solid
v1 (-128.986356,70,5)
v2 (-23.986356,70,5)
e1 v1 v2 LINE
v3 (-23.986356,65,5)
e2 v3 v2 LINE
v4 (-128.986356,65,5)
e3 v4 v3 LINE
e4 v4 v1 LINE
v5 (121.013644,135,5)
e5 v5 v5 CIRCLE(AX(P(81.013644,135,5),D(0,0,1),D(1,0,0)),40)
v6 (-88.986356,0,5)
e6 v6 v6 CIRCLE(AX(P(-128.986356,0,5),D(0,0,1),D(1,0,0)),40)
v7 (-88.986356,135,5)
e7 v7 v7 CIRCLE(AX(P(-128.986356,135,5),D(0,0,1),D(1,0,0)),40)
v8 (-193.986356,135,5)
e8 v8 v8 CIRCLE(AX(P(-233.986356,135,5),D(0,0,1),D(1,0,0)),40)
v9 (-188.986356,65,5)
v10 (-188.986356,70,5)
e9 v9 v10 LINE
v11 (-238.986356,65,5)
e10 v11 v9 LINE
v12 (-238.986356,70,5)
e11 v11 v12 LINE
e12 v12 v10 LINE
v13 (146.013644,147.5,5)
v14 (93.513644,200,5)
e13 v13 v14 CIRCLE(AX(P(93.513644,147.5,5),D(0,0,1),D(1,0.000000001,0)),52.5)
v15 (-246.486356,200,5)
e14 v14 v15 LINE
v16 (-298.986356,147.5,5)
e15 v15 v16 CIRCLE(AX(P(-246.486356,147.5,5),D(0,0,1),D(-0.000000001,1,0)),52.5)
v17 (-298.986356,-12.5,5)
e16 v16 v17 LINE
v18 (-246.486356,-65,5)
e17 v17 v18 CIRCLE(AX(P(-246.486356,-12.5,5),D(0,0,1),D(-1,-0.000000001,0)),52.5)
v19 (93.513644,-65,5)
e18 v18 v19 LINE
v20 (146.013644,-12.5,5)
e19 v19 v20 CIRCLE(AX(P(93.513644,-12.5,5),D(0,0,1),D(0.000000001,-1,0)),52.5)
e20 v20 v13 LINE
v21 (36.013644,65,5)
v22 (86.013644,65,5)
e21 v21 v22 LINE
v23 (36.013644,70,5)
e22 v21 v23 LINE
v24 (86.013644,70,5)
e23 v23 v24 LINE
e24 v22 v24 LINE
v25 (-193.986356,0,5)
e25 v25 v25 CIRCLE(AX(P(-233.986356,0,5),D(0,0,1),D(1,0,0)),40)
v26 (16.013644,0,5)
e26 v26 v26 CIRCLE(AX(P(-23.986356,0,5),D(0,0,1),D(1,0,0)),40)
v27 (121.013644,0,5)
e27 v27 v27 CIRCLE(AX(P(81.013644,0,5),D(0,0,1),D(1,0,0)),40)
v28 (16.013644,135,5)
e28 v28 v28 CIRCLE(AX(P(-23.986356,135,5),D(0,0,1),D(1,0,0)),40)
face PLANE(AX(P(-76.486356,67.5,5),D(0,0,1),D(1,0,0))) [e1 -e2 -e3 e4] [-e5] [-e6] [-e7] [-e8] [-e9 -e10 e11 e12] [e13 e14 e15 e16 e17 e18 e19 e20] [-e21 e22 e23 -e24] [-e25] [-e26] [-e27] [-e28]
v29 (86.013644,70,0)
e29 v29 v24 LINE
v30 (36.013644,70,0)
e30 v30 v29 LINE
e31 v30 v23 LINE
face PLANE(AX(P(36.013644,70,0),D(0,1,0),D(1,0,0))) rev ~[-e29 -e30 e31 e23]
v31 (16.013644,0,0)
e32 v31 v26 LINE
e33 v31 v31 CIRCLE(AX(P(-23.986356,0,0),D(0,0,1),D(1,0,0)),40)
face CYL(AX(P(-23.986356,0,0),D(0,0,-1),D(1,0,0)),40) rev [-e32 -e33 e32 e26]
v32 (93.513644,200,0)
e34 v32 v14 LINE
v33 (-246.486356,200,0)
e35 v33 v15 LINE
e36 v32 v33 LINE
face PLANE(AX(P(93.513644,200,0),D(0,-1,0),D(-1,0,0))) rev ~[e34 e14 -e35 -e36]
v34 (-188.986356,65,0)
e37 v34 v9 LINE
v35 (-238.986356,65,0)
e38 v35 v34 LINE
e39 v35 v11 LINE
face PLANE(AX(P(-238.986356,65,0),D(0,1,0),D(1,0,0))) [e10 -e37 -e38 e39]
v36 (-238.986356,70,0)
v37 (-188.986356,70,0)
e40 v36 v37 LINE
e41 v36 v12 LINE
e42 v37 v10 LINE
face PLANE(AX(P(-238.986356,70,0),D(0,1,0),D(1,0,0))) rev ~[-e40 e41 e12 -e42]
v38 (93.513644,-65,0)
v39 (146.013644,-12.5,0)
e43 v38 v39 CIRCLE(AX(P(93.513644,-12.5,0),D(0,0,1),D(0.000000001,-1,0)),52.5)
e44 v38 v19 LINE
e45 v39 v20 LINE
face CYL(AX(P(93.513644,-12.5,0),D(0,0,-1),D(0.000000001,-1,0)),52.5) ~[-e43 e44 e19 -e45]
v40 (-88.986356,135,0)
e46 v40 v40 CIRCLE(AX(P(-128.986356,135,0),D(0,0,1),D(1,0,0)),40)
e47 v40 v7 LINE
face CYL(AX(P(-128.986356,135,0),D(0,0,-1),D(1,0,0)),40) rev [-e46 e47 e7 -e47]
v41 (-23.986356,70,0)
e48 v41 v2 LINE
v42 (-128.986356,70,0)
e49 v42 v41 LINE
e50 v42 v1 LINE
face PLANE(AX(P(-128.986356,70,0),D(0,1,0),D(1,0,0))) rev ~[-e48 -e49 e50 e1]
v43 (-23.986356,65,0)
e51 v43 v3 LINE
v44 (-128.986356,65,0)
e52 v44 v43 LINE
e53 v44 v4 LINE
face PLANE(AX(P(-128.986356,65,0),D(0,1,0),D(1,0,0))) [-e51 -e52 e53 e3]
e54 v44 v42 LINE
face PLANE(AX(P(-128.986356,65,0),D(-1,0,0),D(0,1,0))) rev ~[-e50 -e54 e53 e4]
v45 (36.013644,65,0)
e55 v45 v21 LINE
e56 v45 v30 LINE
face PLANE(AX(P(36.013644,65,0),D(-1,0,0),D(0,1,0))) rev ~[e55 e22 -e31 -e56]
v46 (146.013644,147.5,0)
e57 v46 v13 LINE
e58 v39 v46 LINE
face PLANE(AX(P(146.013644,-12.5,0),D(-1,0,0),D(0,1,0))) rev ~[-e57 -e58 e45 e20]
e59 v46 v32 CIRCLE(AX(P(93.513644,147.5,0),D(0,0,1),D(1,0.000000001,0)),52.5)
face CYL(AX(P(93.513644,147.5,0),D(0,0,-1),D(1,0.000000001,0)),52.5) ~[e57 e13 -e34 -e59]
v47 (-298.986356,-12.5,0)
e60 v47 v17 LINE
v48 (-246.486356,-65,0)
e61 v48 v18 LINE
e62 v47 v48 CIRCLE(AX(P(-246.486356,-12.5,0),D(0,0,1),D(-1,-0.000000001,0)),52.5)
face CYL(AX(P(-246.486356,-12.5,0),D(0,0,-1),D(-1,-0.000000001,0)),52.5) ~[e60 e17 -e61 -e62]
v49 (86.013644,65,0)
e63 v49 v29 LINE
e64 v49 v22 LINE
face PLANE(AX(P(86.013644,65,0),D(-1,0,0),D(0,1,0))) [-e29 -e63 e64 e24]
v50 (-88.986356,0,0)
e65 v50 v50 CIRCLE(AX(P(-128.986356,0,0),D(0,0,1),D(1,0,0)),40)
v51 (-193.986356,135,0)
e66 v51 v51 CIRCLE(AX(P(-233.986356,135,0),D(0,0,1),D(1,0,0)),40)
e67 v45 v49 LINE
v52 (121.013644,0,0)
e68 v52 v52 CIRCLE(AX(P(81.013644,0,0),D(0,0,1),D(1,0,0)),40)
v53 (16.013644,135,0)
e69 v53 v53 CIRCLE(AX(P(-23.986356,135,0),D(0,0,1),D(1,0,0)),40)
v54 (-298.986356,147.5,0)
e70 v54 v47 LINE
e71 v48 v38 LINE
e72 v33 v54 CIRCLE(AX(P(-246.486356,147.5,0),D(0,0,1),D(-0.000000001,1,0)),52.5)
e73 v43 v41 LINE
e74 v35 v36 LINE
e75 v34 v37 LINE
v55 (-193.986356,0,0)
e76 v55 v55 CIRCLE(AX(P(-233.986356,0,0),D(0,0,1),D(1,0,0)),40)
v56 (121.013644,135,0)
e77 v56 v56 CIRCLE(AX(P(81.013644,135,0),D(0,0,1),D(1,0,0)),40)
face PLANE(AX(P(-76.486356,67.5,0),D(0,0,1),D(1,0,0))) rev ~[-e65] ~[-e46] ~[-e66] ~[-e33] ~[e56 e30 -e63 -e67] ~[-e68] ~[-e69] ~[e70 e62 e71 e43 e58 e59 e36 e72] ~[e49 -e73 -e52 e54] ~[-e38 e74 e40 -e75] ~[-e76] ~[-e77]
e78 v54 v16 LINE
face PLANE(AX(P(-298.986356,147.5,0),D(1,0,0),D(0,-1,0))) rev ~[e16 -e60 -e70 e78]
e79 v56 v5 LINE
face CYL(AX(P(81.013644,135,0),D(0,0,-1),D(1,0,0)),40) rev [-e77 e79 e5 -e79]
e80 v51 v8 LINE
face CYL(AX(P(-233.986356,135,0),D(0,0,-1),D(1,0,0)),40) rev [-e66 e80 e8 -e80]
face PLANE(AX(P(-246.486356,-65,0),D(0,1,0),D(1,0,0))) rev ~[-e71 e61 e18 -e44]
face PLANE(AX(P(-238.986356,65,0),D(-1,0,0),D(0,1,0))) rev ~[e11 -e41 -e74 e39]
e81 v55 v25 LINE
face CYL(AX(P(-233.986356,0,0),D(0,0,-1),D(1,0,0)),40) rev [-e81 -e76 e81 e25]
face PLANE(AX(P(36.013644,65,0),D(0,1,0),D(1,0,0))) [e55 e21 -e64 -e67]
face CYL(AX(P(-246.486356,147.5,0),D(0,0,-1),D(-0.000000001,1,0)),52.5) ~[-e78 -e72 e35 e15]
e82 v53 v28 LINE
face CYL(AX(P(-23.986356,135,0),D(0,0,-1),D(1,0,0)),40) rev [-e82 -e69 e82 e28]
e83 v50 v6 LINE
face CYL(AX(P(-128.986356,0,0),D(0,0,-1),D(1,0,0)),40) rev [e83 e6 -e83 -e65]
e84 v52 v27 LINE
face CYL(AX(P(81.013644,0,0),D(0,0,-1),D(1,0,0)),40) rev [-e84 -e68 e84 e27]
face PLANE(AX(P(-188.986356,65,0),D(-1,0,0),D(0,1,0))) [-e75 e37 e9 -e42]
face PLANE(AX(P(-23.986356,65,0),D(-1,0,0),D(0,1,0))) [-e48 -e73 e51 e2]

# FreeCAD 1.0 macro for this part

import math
import FreeCAD as App
import Part
import Sketcher


def add_polygon(sketch, points):
    """Adds a closed chain of lines whose ends are joined by coincident constraints."""
    first, n = sketch.GeometryCount, len(points)
    for a, b in zip(points, points[1:] + points[:1]):
        sketch.addGeometry(Part.LineSegment(App.Vector(*a, 0), App.Vector(*b, 0)), False)
    for i in range(n):
        sketch.addConstraint(Sketcher.Constraint("Coincident", first + i, 2, first + (i + 1) % n, 1))

doc = App.newDocument("Part")
body = doc.addObject("PartDesign::Body", "Body")

sketch1 = body.newObject("Sketcher::SketchObject", "Sketch")
sketch1.AttachmentSupport = (doc.getObject("XY_Plane"), [""])
sketch1.MapMode = "FlatFace"
sketch1.addGeometry(Part.ArcOfCircle(Part.Circle(App.Vector(93.513644, 147.5, 0), App.Vector(0, 0, 1), 52.5), math.radians(0), math.radians(90)), False)
sketch1.addGeometry(Part.LineSegment(App.Vector(93.513644, 200, 0), App.Vector(-246.486356, 200, 0)), False)
sketch1.addGeometry(Part.ArcOfCircle(Part.Circle(App.Vector(-246.486356, 147.5, 0), App.Vector(0, 0, 1), 52.5), math.radians(90), math.radians(180)), False)
sketch1.addGeometry(Part.LineSegment(App.Vector(-298.986356, 147.5, 0), App.Vector(-298.986356, -12.5, 0)), False)
sketch1.addGeometry(Part.ArcOfCircle(Part.Circle(App.Vector(-246.486356, -12.5, 0), App.Vector(0, 0, 1), 52.5), math.radians(-180), math.radians(-90)), False)
sketch1.addGeometry(Part.LineSegment(App.Vector(-246.486356, -65, 0), App.Vector(93.513644, -65, 0)), False)
sketch1.addGeometry(Part.ArcOfCircle(Part.Circle(App.Vector(93.513644, -12.5, 0), App.Vector(0, 0, 1), 52.5), math.radians(-90), math.radians(0)), False)
sketch1.addGeometry(Part.LineSegment(App.Vector(146.013644, -12.5, 0), App.Vector(146.013644, 147.5, 0)), False)
sketch1.addGeometry(Part.Circle(App.Vector(-233.986356, 0, 0), App.Vector(0, 0, 1), 40), False)
sketch1.addGeometry(Part.Circle(App.Vector(-128.986356, 0, 0), App.Vector(0, 0, 1), 40), False)
sketch1.addGeometry(Part.Circle(App.Vector(-23.986356, 0, 0), App.Vector(0, 0, 1), 40), False)
sketch1.addGeometry(Part.Circle(App.Vector(81.013644, 0, 0), App.Vector(0, 0, 1), 40), False)
add_polygon(sketch1, [(-188.986356, 65), (-238.986356, 65), (-238.986356, 70), (-188.986356, 70)])
sketch1.addGeometry(Part.Circle(App.Vector(-233.986356, 135, 0), App.Vector(0, 0, 1), 40), False)
sketch1.addGeometry(Part.Circle(App.Vector(-128.986356, 135, 0), App.Vector(0, 0, 1), 40), False)
add_polygon(sketch1, [(-23.986356, 65), (-128.986356, 65), (-128.986356, 70), (-23.986356, 70)])
add_polygon(sketch1, [(86.013644, 65), (36.013644, 65), (36.013644, 70), (86.013644, 70)])
sketch1.addGeometry(Part.Circle(App.Vector(-23.986356, 135, 0), App.Vector(0, 0, 1), 40), False)
sketch1.addGeometry(Part.Circle(App.Vector(81.013644, 135, 0), App.Vector(0, 0, 1), 40), False)
sketch1.addConstraint([
    Sketcher.Constraint("Tangent", 0, 2, 1, 1),
    Sketcher.Constraint("Tangent", 1, 2, 2, 1),
    Sketcher.Constraint("Tangent", 2, 2, 3, 1),
    Sketcher.Constraint("Tangent", 3, 2, 4, 1),
    Sketcher.Constraint("Tangent", 4, 2, 5, 1),
    Sketcher.Constraint("Tangent", 5, 2, 6, 1),
    Sketcher.Constraint("Tangent", 6, 2, 7, 1),
    Sketcher.Constraint("Tangent", 7, 2, 0, 1),
    Sketcher.Constraint("Horizontal", 1),
    Sketcher.Constraint("Vertical", 3),
    Sketcher.Constraint("Horizontal", 5),
    Sketcher.Constraint("Vertical", 7),
    Sketcher.Constraint("Horizontal", 12),
    Sketcher.Constraint("Vertical", 13),
    Sketcher.Constraint("Horizontal", 14),
    Sketcher.Constraint("Vertical", 15),
    Sketcher.Constraint("Horizontal", 18),
    Sketcher.Constraint("Vertical", 19),
    Sketcher.Constraint("Horizontal", 20),
    Sketcher.Constraint("Vertical", 21),
    Sketcher.Constraint("Horizontal", 22),
    Sketcher.Constraint("Vertical", 23),
    Sketcher.Constraint("Horizontal", 24),
    Sketcher.Constraint("Vertical", 25),
    Sketcher.Constraint("Equal", 0, 2),
    Sketcher.Constraint("Equal", 2, 4),
    Sketcher.Constraint("Equal", 4, 6),
    Sketcher.Constraint("Equal", 8, 9),
    Sketcher.Constraint("Equal", 9, 10),
    Sketcher.Constraint("Equal", 10, 11),
    Sketcher.Constraint("Equal", 11, 16),
    Sketcher.Constraint("Equal", 16, 17),
    Sketcher.Constraint("Equal", 17, 26),
    Sketcher.Constraint("Equal", 26, 27),
    Sketcher.Constraint("PointOnObject", 8, 3, -1),
    Sketcher.Constraint("PointOnObject", 9, 3, -1),
    Sketcher.Constraint("PointOnObject", 10, 3, -1),
    Sketcher.Constraint("PointOnObject", 11, 3, -1),
    Sketcher.Constraint("Horizontal", 16, 3, 17, 3),
    Sketcher.Constraint("Horizontal", 17, 3, 26, 3),
    Sketcher.Constraint("Horizontal", 26, 3, 27, 3),
    Sketcher.Constraint("Horizontal", 15, 2, 18, 2),
    Sketcher.Constraint("Horizontal", 14, 2, 19, 2),
    Sketcher.Constraint("Horizontal", 21, 2, 22, 2),
    Sketcher.Constraint("Horizontal", 20, 2, 23, 2),
    Sketcher.Constraint("Vertical", 8, 3, 16, 3),
    Sketcher.Constraint("Vertical", 9, 3, 17, 3),
    Sketcher.Constraint("Vertical", 10, 3, 26, 3),
    Sketcher.Constraint("Vertical", 11, 3, 27, 3),
    Sketcher.Constraint("Vertical", 17, 3, 18, 2),
    Sketcher.Constraint("Vertical", 26, 3, 20, 2),
    Sketcher.Constraint("Equal", 14, 22),
    Sketcher.Constraint("Diameter", 8, 80.0),
    Sketcher.Constraint("Radius", 0, 52.5),
    Sketcher.Constraint("DistanceX", 1, 2, 1, 1, 340.0),
    Sketcher.Constraint("DistanceX", 12, 2, 12, 1, 50.0),
    Sketcher.Constraint("DistanceX", 18, 2, 18, 1, 105.0),
    Sketcher.Constraint("DistanceY", 3, 2, 3, 1, 160.0),
    Sketcher.Constraint("DistanceY", 13, 1, 13, 2, 5.0),
    Sketcher.Constraint("DistanceY", -1, 1, 16, 3, 135.0),
    Sketcher.Constraint("DistanceY", -1, 1, 0, 2, 200.0),
    Sketcher.Constraint("DistanceY", -1, 1, 12, 2, 65.0),
    Sketcher.Constraint("DistanceX", 8, 3, 9, 3, 105.0),
    Sketcher.Constraint("DistanceX", 10, 3, 11, 3, 105.0),
    Sketcher.Constraint("DistanceX", 2, 2, 16, 3, 65.0),
    Sketcher.Constraint("DistanceX", 12, 2, 8, 3, 5.0),
    Sketcher.Constraint("DistanceX", 21, 2, 22, 2, 60.0),
    Sketcher.Constraint("DistanceX", -1, 1, 0, 3, 93.513644),
])
pad1 = body.newObject("PartDesign::Pad", "Pad")
pad1.Profile = sketch1
pad1.Length = 5

doc.recompute()
